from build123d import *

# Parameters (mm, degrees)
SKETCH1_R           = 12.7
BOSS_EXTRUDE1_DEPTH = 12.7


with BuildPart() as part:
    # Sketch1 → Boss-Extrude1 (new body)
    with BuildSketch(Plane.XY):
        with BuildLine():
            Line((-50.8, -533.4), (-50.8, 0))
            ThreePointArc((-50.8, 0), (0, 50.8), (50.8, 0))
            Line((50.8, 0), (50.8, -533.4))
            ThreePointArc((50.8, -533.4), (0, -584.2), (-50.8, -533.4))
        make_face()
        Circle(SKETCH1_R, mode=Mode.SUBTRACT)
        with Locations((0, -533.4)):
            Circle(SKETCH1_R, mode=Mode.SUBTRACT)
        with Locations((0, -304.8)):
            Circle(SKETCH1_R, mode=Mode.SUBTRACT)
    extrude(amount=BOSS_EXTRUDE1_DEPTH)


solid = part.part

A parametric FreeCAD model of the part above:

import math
import FreeCAD as App
import Part
import Sketcher
Q = App.Units.Quantity

doc = App.newDocument("Part")
body = doc.addObject("PartDesign::Body", "Body")

# Sketch on XY plane
sketch1 = body.newObject("Sketcher::SketchObject", "Sketch")
sketch1.AttachmentSupport = (doc.getObject("XY_Plane"), [""])
sketch1.MapMode = "FlatFace"
sketch1.addGeometry(Part.LineSegment(App.Vector(-51, 0, 0), App.Vector(-51, -533, 0)), False)
sketch1.addGeometry(Part.ArcOfCircle(Part.Circle(App.Vector(0, -533, 0), App.Vector(0, 0, 1), 51), math.radians(180), math.radians(360)), False)
sketch1.addGeometry(Part.LineSegment(App.Vector(51, -533, 0), App.Vector(51, 0, 0)), False)
sketch1.addGeometry(Part.ArcOfCircle(Part.Circle(App.Vector(0, 0, 0), App.Vector(0, 0, 1), 51), math.radians(0), math.radians(180)), False)
sketch1.addGeometry(Part.Circle(App.Vector(0, -533, 0), App.Vector(0, 0, 1), 13), False)
sketch1.addGeometry(Part.Circle(App.Vector(0, -305, 0), App.Vector(0, 0, 1), 13), False)
sketch1.addGeometry(Part.Circle(App.Vector(0, 0, 0), App.Vector(0, 0, 1), 13), False)
sketch1.addConstraint(Sketcher.Constraint("Tangent", 0, 2, 1, 1))
sketch1.addConstraint(Sketcher.Constraint("Tangent", 1, 2, 2, 1))
sketch1.addConstraint(Sketcher.Constraint("Tangent", 2, 2, 3, 1))
sketch1.addConstraint(Sketcher.Constraint("Tangent", 3, 2, 0, 1))
sketch1.addConstraint(Sketcher.Constraint("Vertical", 0))
sketch1.addConstraint(Sketcher.Constraint("Vertical", 2))
sketch1.addConstraint(Sketcher.Constraint("Coincident", 3, 3, -1, 1))
sketch1.addConstraint(Sketcher.Constraint("Coincident", 6, 3, -1, 1))
sketch1.addConstraint(Sketcher.Constraint("Coincident", 4, 3, 1, 3))
sketch1.addConstraint(Sketcher.Constraint("Equal", 4, 5))
sketch1.addConstraint(Sketcher.Constraint("Equal", 5, 6))
sketch1.addConstraint(Sketcher.Constraint("PointOnObject", 5, 3, -2))
sketch1.addConstraint(Sketcher.Constraint("Diameter", 4, Q("1 in")))
sketch1.addConstraint(Sketcher.Constraint("Radius", 1, Q("2 in")))
sketch1.addConstraint(Sketcher.Constraint("DistanceY", 0, 2, 0, 1, Q("21 in")))
sketch1.addConstraint(Sketcher.Constraint("DistanceY", 5, 3, -1, 1, Q("12 in")))
pad1 = body.newObject("PartDesign::Pad", "Pad")
pad1.Profile = sketch1
pad1.Length = Q("0.5 in")

doc.recompute()
